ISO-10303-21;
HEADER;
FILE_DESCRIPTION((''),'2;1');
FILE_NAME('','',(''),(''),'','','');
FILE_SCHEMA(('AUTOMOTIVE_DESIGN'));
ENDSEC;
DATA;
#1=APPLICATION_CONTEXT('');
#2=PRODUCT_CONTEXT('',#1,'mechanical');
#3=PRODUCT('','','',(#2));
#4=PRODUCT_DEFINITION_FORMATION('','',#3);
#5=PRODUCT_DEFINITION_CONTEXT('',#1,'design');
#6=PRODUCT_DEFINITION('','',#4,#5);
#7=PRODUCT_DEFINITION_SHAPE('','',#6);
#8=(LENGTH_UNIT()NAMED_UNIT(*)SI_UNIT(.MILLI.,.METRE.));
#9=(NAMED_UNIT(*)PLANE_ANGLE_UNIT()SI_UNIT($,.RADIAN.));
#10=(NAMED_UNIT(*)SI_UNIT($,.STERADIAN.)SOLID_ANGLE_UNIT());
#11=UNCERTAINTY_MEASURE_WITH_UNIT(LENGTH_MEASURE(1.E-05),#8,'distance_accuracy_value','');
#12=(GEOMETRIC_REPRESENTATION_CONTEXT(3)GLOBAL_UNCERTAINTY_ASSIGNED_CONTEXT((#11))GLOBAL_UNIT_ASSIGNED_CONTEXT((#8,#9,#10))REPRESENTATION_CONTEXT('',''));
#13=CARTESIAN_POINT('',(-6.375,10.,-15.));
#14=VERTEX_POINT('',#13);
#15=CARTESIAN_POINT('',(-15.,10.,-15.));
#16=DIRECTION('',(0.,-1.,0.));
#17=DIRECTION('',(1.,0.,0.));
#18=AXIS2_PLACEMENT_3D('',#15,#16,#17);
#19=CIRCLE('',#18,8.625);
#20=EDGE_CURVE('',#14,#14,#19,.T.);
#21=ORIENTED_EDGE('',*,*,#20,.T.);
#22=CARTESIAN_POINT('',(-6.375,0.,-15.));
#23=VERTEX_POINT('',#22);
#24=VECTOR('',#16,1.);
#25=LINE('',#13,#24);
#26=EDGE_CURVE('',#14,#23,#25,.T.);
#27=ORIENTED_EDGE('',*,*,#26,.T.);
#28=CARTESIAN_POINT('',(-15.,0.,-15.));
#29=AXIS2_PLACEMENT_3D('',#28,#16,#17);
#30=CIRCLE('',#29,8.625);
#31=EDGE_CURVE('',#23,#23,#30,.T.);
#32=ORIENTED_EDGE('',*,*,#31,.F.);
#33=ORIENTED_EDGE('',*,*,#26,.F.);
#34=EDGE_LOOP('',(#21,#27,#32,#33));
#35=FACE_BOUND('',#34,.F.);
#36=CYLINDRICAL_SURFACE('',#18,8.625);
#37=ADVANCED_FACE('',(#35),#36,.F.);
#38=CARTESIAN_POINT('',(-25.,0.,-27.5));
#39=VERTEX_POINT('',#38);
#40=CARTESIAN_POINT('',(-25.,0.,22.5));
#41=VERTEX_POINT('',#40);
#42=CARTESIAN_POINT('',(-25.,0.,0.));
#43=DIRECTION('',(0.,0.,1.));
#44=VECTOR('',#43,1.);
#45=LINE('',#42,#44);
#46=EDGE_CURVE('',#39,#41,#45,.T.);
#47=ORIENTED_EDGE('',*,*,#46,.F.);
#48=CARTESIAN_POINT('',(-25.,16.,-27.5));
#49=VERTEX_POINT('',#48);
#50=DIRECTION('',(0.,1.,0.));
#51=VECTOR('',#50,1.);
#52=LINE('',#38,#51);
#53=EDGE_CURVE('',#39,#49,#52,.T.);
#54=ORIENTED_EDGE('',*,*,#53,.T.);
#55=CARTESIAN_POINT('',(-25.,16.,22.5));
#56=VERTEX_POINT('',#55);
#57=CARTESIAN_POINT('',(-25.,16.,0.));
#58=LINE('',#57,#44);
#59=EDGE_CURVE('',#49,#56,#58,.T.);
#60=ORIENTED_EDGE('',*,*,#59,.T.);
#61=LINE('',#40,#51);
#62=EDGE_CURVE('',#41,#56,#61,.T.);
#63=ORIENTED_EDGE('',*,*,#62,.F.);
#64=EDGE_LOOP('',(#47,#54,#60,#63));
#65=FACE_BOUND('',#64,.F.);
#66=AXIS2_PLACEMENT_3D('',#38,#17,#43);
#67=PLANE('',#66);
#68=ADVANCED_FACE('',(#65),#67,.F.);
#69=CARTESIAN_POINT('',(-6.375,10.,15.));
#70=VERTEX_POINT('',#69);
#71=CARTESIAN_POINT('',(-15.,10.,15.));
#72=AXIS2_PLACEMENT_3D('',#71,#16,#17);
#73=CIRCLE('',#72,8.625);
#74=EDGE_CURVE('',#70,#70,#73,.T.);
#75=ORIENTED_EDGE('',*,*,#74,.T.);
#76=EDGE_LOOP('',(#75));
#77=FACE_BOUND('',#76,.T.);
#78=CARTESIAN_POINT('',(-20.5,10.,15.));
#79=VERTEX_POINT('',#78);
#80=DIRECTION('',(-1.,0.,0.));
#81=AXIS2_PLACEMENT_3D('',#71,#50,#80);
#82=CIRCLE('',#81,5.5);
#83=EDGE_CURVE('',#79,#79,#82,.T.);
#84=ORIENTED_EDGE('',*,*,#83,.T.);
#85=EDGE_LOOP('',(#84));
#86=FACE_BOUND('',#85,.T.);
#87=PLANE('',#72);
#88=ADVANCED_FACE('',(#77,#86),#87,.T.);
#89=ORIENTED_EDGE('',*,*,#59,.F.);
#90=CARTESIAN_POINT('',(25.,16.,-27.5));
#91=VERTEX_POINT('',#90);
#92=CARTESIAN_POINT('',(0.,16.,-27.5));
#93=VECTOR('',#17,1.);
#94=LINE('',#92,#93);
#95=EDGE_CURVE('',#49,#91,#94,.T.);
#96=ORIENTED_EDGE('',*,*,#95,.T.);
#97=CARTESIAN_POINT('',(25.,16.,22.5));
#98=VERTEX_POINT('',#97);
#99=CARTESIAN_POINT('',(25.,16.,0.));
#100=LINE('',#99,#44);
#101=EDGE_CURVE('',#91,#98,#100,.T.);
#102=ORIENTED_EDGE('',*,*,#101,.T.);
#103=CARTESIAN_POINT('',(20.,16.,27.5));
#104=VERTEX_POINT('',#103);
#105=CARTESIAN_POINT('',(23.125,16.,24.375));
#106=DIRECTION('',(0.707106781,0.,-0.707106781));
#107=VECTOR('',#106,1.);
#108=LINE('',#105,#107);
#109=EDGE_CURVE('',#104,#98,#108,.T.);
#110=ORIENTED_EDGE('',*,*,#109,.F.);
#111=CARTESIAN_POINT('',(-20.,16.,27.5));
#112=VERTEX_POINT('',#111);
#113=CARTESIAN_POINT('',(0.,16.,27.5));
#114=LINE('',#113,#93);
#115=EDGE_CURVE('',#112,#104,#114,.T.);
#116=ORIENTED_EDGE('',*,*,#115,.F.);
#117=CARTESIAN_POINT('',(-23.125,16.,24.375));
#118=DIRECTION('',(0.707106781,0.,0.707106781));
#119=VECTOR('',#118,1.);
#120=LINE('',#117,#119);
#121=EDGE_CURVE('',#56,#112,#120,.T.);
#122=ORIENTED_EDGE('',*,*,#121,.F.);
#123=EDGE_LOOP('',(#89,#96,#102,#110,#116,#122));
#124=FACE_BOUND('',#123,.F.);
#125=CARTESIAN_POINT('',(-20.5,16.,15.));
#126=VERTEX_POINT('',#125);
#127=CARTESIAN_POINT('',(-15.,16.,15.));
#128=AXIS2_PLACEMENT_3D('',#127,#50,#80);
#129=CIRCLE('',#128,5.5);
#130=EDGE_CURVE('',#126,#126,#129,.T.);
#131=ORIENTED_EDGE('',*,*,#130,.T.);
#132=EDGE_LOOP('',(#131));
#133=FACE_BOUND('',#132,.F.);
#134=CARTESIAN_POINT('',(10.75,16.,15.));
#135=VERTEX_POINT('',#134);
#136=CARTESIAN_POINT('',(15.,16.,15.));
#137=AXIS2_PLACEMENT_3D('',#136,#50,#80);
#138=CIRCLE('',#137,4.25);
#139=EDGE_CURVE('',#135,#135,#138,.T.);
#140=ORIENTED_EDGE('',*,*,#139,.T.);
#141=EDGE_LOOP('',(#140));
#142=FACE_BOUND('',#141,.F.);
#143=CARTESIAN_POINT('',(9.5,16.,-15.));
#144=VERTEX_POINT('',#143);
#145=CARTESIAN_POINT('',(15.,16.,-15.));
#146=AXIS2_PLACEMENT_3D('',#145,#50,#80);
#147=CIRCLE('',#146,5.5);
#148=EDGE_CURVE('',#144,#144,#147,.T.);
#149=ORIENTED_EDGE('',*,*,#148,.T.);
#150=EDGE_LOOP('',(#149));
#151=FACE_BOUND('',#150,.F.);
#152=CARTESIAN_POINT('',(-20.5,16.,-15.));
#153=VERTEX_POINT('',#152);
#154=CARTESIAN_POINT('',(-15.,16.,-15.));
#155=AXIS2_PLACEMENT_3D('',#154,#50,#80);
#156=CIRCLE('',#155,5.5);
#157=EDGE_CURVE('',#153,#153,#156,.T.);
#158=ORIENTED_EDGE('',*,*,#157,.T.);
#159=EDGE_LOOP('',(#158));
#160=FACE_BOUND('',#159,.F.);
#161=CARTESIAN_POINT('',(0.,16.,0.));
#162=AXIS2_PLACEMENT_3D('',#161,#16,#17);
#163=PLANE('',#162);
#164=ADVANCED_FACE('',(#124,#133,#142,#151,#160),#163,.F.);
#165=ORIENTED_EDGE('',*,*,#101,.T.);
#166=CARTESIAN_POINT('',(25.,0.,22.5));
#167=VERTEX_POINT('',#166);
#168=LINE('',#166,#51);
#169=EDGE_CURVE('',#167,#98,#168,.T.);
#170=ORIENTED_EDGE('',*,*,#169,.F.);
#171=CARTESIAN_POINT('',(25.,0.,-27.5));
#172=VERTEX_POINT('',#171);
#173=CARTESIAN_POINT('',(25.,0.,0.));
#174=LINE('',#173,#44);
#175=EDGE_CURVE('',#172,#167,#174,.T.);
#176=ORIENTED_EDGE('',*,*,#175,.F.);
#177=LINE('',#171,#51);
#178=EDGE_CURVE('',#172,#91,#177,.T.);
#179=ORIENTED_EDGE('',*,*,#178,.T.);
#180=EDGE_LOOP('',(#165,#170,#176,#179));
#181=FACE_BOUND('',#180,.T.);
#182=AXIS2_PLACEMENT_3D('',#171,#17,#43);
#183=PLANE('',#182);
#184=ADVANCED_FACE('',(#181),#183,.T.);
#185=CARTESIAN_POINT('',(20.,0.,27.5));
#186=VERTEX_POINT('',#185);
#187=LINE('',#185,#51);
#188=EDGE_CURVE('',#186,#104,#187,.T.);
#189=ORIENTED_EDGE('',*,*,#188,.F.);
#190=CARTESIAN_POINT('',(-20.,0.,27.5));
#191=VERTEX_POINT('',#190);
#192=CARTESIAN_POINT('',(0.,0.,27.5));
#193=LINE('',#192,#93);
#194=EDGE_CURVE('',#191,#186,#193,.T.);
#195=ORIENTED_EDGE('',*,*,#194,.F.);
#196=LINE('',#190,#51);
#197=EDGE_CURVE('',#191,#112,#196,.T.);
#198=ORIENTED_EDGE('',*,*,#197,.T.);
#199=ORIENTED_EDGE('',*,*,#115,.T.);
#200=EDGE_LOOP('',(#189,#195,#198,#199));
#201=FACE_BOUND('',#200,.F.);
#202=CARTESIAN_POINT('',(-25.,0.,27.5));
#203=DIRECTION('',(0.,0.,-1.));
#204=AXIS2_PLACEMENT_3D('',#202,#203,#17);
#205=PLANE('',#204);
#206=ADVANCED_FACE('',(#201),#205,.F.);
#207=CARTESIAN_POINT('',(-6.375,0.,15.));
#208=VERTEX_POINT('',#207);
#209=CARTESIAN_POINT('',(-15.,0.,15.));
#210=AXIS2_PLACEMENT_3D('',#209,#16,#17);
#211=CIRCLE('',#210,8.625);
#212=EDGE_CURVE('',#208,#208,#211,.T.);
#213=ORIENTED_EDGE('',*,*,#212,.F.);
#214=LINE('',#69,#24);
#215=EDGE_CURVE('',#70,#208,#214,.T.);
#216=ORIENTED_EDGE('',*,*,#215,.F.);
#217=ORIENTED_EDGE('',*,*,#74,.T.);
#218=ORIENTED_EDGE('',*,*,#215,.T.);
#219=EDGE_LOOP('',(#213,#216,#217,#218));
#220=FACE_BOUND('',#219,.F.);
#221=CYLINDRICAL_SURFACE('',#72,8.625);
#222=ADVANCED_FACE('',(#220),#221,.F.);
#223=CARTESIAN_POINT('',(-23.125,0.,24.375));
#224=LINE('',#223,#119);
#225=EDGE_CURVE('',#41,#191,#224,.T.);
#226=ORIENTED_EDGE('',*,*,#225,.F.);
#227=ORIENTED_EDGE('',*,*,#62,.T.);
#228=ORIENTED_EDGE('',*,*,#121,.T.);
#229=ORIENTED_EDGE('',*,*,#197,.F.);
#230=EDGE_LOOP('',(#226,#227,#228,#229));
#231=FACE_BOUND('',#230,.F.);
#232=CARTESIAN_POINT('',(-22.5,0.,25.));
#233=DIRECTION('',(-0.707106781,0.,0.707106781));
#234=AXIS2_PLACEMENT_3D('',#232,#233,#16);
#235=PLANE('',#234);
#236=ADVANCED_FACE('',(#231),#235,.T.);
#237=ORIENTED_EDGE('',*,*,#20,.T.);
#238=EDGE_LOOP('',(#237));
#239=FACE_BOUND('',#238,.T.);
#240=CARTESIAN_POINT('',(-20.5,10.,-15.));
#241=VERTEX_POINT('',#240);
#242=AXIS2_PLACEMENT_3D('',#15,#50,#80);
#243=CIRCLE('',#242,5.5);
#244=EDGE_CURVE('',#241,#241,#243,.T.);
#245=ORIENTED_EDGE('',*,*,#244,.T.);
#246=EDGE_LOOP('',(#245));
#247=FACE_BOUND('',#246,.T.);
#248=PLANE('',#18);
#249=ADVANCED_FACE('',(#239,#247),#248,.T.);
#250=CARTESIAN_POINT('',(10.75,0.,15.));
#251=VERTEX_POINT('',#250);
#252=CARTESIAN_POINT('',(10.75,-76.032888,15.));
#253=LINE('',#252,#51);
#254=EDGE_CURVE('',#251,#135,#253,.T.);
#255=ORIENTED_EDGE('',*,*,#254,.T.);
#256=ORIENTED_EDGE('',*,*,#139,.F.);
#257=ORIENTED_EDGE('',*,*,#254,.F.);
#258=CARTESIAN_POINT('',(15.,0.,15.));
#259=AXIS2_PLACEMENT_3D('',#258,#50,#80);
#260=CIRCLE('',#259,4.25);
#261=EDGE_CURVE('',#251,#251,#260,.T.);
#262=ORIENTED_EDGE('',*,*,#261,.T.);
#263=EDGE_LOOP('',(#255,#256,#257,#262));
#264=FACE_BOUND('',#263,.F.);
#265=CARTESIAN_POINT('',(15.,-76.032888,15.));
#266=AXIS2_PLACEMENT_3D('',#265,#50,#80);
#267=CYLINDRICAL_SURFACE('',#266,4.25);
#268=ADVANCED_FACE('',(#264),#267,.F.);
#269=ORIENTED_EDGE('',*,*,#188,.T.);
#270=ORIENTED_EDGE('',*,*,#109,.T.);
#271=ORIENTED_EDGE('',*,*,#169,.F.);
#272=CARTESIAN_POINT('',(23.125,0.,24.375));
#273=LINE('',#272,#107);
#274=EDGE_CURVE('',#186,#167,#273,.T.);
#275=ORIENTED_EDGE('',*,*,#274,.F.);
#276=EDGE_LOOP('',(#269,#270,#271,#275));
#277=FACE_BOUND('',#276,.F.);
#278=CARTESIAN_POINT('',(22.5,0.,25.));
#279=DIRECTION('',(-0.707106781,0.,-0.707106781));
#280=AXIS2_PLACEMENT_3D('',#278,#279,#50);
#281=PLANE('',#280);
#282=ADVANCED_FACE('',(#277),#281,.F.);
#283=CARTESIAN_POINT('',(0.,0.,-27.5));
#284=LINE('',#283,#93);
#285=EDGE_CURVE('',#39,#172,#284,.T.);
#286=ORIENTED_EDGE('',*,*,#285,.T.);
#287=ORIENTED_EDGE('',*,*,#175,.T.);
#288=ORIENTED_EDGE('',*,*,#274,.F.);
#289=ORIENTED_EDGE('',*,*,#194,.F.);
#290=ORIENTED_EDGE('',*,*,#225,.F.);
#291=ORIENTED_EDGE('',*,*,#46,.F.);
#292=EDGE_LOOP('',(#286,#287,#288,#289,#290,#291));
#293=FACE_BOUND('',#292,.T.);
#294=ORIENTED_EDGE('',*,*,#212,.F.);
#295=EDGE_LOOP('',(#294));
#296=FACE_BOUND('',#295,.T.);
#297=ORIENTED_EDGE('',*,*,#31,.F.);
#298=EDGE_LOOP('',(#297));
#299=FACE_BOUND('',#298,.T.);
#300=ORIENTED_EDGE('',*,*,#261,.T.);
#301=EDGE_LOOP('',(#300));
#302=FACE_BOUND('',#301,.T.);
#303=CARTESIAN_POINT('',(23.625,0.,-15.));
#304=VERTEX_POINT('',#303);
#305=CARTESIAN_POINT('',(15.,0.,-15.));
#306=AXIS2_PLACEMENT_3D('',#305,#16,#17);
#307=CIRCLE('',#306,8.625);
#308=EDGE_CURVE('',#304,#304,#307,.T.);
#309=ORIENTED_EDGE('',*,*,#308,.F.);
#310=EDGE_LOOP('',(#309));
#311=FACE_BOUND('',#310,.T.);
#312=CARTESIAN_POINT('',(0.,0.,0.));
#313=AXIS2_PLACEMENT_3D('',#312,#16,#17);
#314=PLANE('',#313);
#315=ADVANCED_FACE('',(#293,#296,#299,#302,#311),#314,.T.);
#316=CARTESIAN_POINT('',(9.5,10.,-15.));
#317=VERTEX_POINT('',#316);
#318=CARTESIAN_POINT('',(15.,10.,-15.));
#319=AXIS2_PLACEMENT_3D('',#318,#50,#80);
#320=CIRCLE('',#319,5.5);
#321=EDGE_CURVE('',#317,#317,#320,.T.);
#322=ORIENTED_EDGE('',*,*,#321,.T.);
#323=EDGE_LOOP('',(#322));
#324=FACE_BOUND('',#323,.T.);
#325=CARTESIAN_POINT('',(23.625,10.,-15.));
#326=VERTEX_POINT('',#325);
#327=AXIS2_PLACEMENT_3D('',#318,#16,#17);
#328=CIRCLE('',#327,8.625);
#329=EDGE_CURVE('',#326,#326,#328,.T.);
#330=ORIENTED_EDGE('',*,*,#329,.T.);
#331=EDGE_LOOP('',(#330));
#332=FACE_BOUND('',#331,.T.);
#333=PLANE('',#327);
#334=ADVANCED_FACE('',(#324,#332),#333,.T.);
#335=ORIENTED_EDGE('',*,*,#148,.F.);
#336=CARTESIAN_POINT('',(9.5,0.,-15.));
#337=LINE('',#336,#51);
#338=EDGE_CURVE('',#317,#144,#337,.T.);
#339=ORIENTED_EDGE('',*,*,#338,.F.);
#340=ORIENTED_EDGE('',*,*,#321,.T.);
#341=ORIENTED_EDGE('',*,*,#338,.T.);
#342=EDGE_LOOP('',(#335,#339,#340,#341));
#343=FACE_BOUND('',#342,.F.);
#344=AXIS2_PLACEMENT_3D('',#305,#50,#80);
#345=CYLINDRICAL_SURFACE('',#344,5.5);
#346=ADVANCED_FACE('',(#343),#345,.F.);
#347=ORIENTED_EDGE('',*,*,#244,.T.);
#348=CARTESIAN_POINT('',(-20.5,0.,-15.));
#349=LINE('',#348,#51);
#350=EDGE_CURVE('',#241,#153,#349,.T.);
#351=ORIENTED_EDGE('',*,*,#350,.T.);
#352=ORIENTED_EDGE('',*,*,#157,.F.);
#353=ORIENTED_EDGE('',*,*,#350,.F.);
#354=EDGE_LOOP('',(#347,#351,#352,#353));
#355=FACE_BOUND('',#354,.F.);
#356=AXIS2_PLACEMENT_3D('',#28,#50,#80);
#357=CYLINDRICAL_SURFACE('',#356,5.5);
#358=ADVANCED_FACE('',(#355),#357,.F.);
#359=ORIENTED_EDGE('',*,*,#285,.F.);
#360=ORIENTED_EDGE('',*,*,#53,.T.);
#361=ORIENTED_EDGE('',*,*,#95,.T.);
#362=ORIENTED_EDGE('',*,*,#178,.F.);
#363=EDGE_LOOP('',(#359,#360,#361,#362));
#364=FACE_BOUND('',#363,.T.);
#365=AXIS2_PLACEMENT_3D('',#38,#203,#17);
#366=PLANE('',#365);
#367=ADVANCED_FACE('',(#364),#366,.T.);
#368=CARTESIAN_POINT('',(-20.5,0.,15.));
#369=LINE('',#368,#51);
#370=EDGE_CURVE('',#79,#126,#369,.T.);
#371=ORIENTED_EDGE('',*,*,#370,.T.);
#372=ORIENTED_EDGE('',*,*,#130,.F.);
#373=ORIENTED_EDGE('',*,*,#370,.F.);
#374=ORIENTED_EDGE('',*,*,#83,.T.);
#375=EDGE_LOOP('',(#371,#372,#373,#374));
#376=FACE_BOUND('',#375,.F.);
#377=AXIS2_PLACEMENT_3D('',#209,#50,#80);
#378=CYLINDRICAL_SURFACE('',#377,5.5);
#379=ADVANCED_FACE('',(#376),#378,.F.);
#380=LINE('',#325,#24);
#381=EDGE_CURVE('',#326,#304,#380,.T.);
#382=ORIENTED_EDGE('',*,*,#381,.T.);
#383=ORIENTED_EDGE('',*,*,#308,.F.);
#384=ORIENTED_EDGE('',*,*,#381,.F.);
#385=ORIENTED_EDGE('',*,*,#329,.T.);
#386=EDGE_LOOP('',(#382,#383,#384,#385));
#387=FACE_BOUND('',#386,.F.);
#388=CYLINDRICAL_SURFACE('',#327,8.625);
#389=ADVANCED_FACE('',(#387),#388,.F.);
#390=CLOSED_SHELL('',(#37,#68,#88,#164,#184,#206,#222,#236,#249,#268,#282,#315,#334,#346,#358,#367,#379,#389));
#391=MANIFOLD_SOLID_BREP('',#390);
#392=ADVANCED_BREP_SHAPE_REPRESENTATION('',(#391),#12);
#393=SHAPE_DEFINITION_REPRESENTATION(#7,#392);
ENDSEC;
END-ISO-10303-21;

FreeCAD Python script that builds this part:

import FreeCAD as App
import Part
import Sketcher

V = App.Vector
Q = App.Units.Quantity


def edges_at(feature, points):
    """Names of the edges that pass closest to the given points."""
    edges = feature.Shape.Edges
    near = lambda p: min(range(len(edges)), key=lambda i: edges[i].distToShape(Part.Vertex(*p))[0])
    return sorted({f"Edge{near(p) + 1}" for p in points})

doc = App.newDocument("Part")
body = doc.addObject("PartDesign::Body", "Body")

sketch1 = body.newObject("Sketcher::SketchObject", "Sketch")
sketch1.AttachmentSupport = (doc.getObject("XZ_Plane"), [""])
sketch1.MapMode = "FlatFace"
sketch1.addGeometry([
    Part.LineSegment(V(-25, 27.5, 0), V(-25, -27.5, 0)),
    Part.LineSegment(V(-25, -27.5, 0), V(25, -27.5, 0)),
    Part.LineSegment(V(25, -27.5, 0), V(25, 27.5, 0)),
    Part.LineSegment(V(25, 27.5, 0), V(-25, 27.5, 0)),
], False)
sketch1.addConstraint([
    Sketcher.Constraint("Coincident", 0, 2, 1, 1),
    Sketcher.Constraint("Coincident", 1, 2, 2, 1),
    Sketcher.Constraint("Coincident", 2, 2, 3, 1),
    Sketcher.Constraint("Coincident", 3, 2, 0, 1),
    Sketcher.Constraint("Vertical", 0),
    Sketcher.Constraint("Horizontal", 1),
    Sketcher.Constraint("Vertical", 2),
    Sketcher.Constraint("Horizontal", 3),
    Sketcher.Constraint("Symmetric", 0, 2, 2, 2, -1, 1),
    Sketcher.Constraint("DistanceX", 1, 1, 1, 2, Q("50 mm")),
    Sketcher.Constraint("DistanceY", 0, 2, 0, 1, Q("55 mm")),
])
pad1 = body.newObject("PartDesign::Pad", "Pad")
pad1.Profile = sketch1
pad1.Length = 16
pad1.Reversed = True

sketch2 = body.newObject("Sketcher::SketchObject", "Sketch001")
sketch2.AttachmentSupport = (doc.getObject("XZ_Plane"), [""])
sketch2.MapMode = "FlatFace"
sketch2.addGeometry([
    Part.Circle(V(-15, 15, 0), V(0, 0, 1), 5.5),
    Part.Circle(V(-15, -15, 0), V(0, 0, 1), 5.5),
    Part.Circle(V(15, -15, 0), V(0, 0, 1), 5.5),
], False)
sketch2.addConstraint([
    Sketcher.Constraint("Equal", 0, 1),
    Sketcher.Constraint("Equal", 1, 2),
    Sketcher.Constraint("Symmetric", 0, 3, 2, 3, -1, 1),
    Sketcher.Constraint("Symmetric", 1, 3, 2, 3, -2),
    Sketcher.Constraint("Diameter", 0, Q("11 mm")),
    Sketcher.Constraint("DistanceX", 0, 3, -1, 1, Q("15 mm")),
    Sketcher.Constraint("DistanceY", -1, 1, 0, 3, Q("15 mm")),
])
doc.recompute()
hole = body.newObject("PartDesign::Hole", "Hole")
hole.Profile = sketch2
hole.ThreadType = "None"
hole.Diameter = 11
hole.DepthType = "ThroughAll"
hole.HoleCutType = "Counterbore"
hole.HoleCutDiameter = 17.25
hole.HoleCutDepth = 10

sketch3 = body.newObject("Sketcher::SketchObject", "Sketch002")
sketch3.AttachmentSupport = (doc.getObject("XZ_Plane"), [""])
sketch3.MapMode = "FlatFace"
sketch3.addGeometry(Part.Circle(V(15, 15, 0), V(0, 0, 1), 4.25), False)
sketch3.addConstraint([
    Sketcher.Constraint("Diameter", 0, Q("8.5 mm")),
    Sketcher.Constraint("DistanceX", -1, 1, 0, 3, Q("15 mm")),
    Sketcher.Constraint("DistanceY", -1, 1, 0, 3, Q("15 mm")),
])
doc.recompute()
hole2 = body.newObject("PartDesign::Hole", "Hole001")
hole2.Profile = sketch3
hole2.ThreadType = "None"
hole2.Diameter = 8.5
hole2.DepthType = "ThroughAll"
doc.recompute()

chamfer = body.newObject("PartDesign::Chamfer", "Chamfer")
chamfer.Base = (hole2, edges_at(hole2, [(-25, 8, 27.5), (25, 8, 27.5)]))
chamfer.Size = 5

doc.recompute()
